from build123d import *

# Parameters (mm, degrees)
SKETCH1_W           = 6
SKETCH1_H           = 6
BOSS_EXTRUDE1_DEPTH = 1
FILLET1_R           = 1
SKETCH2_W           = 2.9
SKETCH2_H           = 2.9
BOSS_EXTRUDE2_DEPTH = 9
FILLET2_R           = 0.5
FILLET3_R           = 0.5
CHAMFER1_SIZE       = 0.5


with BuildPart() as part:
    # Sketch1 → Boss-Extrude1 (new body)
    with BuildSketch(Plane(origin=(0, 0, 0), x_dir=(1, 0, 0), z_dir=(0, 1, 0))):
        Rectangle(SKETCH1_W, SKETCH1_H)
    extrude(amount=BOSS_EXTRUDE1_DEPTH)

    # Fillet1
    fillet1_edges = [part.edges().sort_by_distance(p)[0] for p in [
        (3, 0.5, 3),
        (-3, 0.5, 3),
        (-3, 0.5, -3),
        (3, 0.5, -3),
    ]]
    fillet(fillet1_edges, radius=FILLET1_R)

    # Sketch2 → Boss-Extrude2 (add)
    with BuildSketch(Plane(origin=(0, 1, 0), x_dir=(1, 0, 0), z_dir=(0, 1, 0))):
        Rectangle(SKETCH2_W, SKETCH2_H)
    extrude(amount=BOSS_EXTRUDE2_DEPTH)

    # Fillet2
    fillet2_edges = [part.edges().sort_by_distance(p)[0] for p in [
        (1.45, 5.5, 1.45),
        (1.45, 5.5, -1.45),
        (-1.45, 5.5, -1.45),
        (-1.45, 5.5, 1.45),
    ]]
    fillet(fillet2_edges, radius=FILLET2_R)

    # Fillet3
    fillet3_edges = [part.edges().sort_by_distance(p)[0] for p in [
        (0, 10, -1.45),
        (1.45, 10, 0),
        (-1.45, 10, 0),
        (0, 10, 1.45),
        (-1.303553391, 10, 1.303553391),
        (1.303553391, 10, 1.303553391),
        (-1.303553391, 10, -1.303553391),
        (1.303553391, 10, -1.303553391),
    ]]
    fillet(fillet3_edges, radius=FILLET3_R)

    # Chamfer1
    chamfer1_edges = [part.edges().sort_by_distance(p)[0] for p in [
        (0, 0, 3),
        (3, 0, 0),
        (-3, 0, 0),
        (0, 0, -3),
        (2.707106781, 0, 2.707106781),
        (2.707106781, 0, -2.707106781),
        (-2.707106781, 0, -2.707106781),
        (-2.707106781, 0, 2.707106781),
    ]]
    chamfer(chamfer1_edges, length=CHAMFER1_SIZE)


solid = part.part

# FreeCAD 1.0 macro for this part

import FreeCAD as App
import Part
import Sketcher

V = App.Vector
Q = App.Units.Quantity


def edges_at(feature, points):
    """Names of the edges that pass closest to the given points."""
    edges = feature.Shape.Edges
    near = lambda p: min(range(len(edges)), key=lambda i: edges[i].distToShape(Part.Vertex(*p))[0])
    return sorted({f"Edge{near(p) + 1}" for p in points})


def add_polygon(sketch, points):
    """Adds a closed chain of lines whose ends are joined by coincident constraints."""
    first, n = sketch.GeometryCount, len(points)
    for a, b in zip(points, points[1:] + points[:1]):
        sketch.addGeometry(Part.LineSegment(App.Vector(*a, 0), App.Vector(*b, 0)), False)
    for i in range(n):
        sketch.addConstraint(Sketcher.Constraint("Coincident", first + i, 2, first + (i + 1) % n, 1))

doc = App.newDocument("Part")
body = doc.addObject("PartDesign::Body", "Body")

# Sketch on XZ plane
sketch1 = body.newObject("Sketcher::SketchObject", "Sketch")
sketch1.AttachmentSupport = (doc.getObject("XZ_Plane"), [""])
sketch1.MapMode = "FlatFace"
add_polygon(sketch1, [(-3, -3), (-3, 3), (3, 3), (3, -3)])  # lines 0-3
sketch1.addConstraint(Sketcher.Constraint("Vertical", 0))
sketch1.addConstraint(Sketcher.Constraint("Horizontal", 1))
sketch1.addConstraint(Sketcher.Constraint("Vertical", 2))
sketch1.addConstraint(Sketcher.Constraint("Horizontal", 3))
sketch1.addConstraint(Sketcher.Constraint("Symmetric", 0, 2, 2, 2, -1, 1))
sketch1.addConstraint(Sketcher.Constraint("Equal", 3, 0))
sketch1.addConstraint(Sketcher.Constraint("DistanceX", 1, 1, 1, 2, Q("6 mm")))
pad1 = body.newObject("PartDesign::Pad", "Pad")
pad1.Profile = sketch1
pad1.Length = 1
pad1.Reversed = True
doc.recompute()

fillet = body.newObject("PartDesign::Fillet", "Fillet")
fillet.Base = (pad1, edges_at(pad1, [
    (3, 0.5, 3),
    (-3, 0.5, 3),
    (-3, 0.5, -3),
    (3, 0.5, -3),
]))
fillet.Radius = 1

# Sketch on XZ plane
sketch2 = body.newObject("Sketcher::SketchObject", "Sketch001")
sketch2.AttachmentSupport = (doc.getObject("XZ_Plane"), [""])
sketch2.MapMode = "FlatFace"
sketch2.AttachmentOffset = App.Placement(V(0, 0, -1), App.Rotation())
add_polygon(sketch2, [(-1.4, -1.4), (-1.4, 1.4), (1.4, 1.4), (1.4, -1.4)])  # lines 0-3
sketch2.addConstraint(Sketcher.Constraint("Vertical", 0))
sketch2.addConstraint(Sketcher.Constraint("Horizontal", 1))
sketch2.addConstraint(Sketcher.Constraint("Vertical", 2))
sketch2.addConstraint(Sketcher.Constraint("Horizontal", 3))
sketch2.addConstraint(Sketcher.Constraint("Symmetric", 0, 2, 2, 2, -1, 1))
sketch2.addConstraint(Sketcher.Constraint("Equal", 3, 0))
sketch2.addConstraint(Sketcher.Constraint("DistanceX", 1, 1, 1, 2, Q("2.9 mm")))
pad2 = body.newObject("PartDesign::Pad", "Pad001")
pad2.Profile = sketch2
pad2.Length = 9
pad2.Reversed = True
doc.recompute()

fillet2 = body.newObject("PartDesign::Fillet", "Fillet001")
fillet2.Base = (pad2, edges_at(pad2, [
    (1.45, 5.5, 1.45),
    (1.45, 5.5, -1.45),
    (-1.45, 5.5, -1.45),
    (-1.45, 5.5, 1.45),
]))
fillet2.Radius = 0.5
doc.recompute()

fillet3 = body.newObject("PartDesign::Fillet", "Fillet002")
fillet3.Base = (fillet2, edges_at(fillet2, [
    (0, 10, -1.45),
    (1.45, 10, 0),
    (-1.45, 10, 0),
    (0, 10, 1.45),
    (-1.304, 10, 1.304),
    (1.304, 10, 1.304),
    (-1.304, 10, -1.304),
    (1.304, 10, -1.304),
]))
fillet3.Radius = 0.5
doc.recompute()

chamfer = body.newObject("PartDesign::Chamfer", "Chamfer")
chamfer.Base = (fillet3, edges_at(fillet3, [
    (0, 0, 3),
    (3, 0, 0),
    (-3, 0, 0),
    (0, 0, -3),
    (2.707, 0, 2.707),
    (2.707, 0, -2.707),
    (-2.707, 0, -2.707),
    (-2.707, 0, 2.707),
]))
chamfer.Size = 0.5

doc.recompute()
